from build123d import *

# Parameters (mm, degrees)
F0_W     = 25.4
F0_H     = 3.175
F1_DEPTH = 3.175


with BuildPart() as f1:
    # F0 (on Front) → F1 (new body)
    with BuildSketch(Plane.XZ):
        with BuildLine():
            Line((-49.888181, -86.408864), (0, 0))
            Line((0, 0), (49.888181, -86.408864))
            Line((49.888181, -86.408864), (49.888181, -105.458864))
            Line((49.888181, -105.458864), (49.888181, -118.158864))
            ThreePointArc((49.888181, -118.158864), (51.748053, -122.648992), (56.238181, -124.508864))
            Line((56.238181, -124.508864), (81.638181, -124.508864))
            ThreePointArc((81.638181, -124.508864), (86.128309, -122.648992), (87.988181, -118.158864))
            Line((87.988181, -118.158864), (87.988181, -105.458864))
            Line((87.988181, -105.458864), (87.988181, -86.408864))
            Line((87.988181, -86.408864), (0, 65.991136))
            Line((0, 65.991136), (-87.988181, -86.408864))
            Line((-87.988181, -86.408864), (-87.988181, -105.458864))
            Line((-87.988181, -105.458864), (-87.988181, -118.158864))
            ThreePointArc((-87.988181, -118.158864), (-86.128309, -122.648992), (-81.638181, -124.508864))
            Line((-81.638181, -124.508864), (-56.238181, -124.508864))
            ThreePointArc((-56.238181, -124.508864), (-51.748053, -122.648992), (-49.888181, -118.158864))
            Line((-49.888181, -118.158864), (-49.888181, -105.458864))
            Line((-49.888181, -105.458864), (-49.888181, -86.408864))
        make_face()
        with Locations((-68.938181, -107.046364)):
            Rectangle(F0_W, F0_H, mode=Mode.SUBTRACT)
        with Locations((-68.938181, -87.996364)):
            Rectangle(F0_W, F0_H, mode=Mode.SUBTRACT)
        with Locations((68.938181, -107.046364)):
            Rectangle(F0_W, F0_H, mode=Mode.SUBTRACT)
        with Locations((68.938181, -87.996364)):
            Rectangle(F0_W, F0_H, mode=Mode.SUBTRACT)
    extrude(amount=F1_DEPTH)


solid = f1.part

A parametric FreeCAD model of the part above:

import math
import FreeCAD as App
import Part
import Sketcher

V = App.Vector
Q = App.Units.Quantity

doc = App.newDocument("Part")
body = doc.addObject("PartDesign::Body", "Body")

# Sketch on XZ plane
sketch1 = doc.addObject("Sketcher::SketchObject", "Sketch")
body.addObject(sketch1)
sketch1.AttachmentSupport = (doc.XZ_Plane, [""])
sketch1.MapMode = "FlatFace"
sketch1.addGeometry(Part.LineSegment(V(-49.9, -86.4, 0), V(0, 0, 0)), False)
sketch1.addGeometry(Part.LineSegment(V(0, 0, 0), V(49.9, -86.4, 0)), False)
sketch1.addGeometry(Part.LineSegment(V(49.9, -86.4, 0), V(49.9, -118.2, 0)), False)
sketch1.addGeometry(Part.ArcOfCircle(Part.Circle(V(56.2, -118.2, 0), V(0, 0, 1), 6.4), math.radians(-180), math.radians(-90)), False)
sketch1.addGeometry(Part.LineSegment(V(56.2, -124.5, 0), V(81.6, -124.5, 0)), False)
sketch1.addGeometry(Part.ArcOfCircle(Part.Circle(V(81.6, -118.2, 0), V(0, 0, 1), 6.4), math.radians(-90), math.radians(0)), False)
sketch1.addGeometry(Part.LineSegment(V(88, -118.2, 0), V(88, -86.4, 0)), False)
sketch1.addGeometry(Part.LineSegment(V(88, -86.4, 0), V(0, 66, 0)), False)
sketch1.addGeometry(Part.LineSegment(V(0, 66, 0), V(-88, -86.4, 0)), False)
sketch1.addGeometry(Part.LineSegment(V(-88, -86.4, 0), V(-88, -118.2, 0)), False)
sketch1.addGeometry(Part.ArcOfCircle(Part.Circle(V(-81.6, -118.2, 0), V(0, 0, 1), 6.4), math.radians(-180), math.radians(-90)), False)
sketch1.addGeometry(Part.LineSegment(V(-81.6, -124.5, 0), V(-56.2, -124.5, 0)), False)
sketch1.addGeometry(Part.ArcOfCircle(Part.Circle(V(-56.2, -118.2, 0), V(0, 0, 1), 6.4), math.radians(-90), math.radians(0)), False)
sketch1.addGeometry(Part.LineSegment(V(-49.9, -118.2, 0), V(-49.9, -86.4, 0)), False)
sketch1.addGeometry(Part.LineSegment(V(-56.2, -108.6, 0), V(-81.6, -108.6, 0)), False)
sketch1.addGeometry(Part.LineSegment(V(-81.6, -108.6, 0), V(-81.6, -105.5, 0)), False)
sketch1.addGeometry(Part.LineSegment(V(-81.6, -105.5, 0), V(-56.2, -105.5, 0)), False)
sketch1.addGeometry(Part.LineSegment(V(-56.2, -105.5, 0), V(-56.2, -108.6, 0)), False)
sketch1.addGeometry(Part.LineSegment(V(81.6, -108.6, 0), V(56.2, -108.6, 0)), False)
sketch1.addGeometry(Part.LineSegment(V(56.2, -108.6, 0), V(56.2, -105.5, 0)), False)
sketch1.addGeometry(Part.LineSegment(V(56.2, -105.5, 0), V(81.6, -105.5, 0)), False)
sketch1.addGeometry(Part.LineSegment(V(81.6, -105.5, 0), V(81.6, -108.6, 0)), False)
sketch1.addGeometry(Part.LineSegment(V(-56.2, -89.6, 0), V(-81.6, -89.6, 0)), False)
sketch1.addGeometry(Part.LineSegment(V(-81.6, -89.6, 0), V(-81.6, -86.4, 0)), False)
sketch1.addGeometry(Part.LineSegment(V(-81.6, -86.4, 0), V(-56.2, -86.4, 0)), False)
sketch1.addGeometry(Part.LineSegment(V(-56.2, -86.4, 0), V(-56.2, -89.6, 0)), False)
sketch1.addGeometry(Part.LineSegment(V(81.6, -89.6, 0), V(56.2, -89.6, 0)), False)
sketch1.addGeometry(Part.LineSegment(V(56.2, -89.6, 0), V(56.2, -86.4, 0)), False)
sketch1.addGeometry(Part.LineSegment(V(56.2, -86.4, 0), V(81.6, -86.4, 0)), False)
sketch1.addGeometry(Part.LineSegment(V(81.6, -86.4, 0), V(81.6, -89.6, 0)), False)
sketch1.addConstraint(Sketcher.Constraint("Coincident", 0, 2, 1, 1))
sketch1.addConstraint(Sketcher.Constraint("Coincident", 1, 2, 2, 1))
sketch1.addConstraint(Sketcher.Constraint("Tangent", 2, 2, 3, 1))
sketch1.addConstraint(Sketcher.Constraint("Tangent", 3, 2, 4, 1))
sketch1.addConstraint(Sketcher.Constraint("Tangent", 4, 2, 5, 1))
sketch1.addConstraint(Sketcher.Constraint("Tangent", 5, 2, 6, 1))
sketch1.addConstraint(Sketcher.Constraint("Coincident", 6, 2, 7, 1))
sketch1.addConstraint(Sketcher.Constraint("Coincident", 7, 2, 8, 1))
sketch1.addConstraint(Sketcher.Constraint("Coincident", 8, 2, 9, 1))
sketch1.addConstraint(Sketcher.Constraint("Tangent", 9, 2, 10, 1))
sketch1.addConstraint(Sketcher.Constraint("Tangent", 10, 2, 11, 1))
sketch1.addConstraint(Sketcher.Constraint("Tangent", 11, 2, 12, 1))
sketch1.addConstraint(Sketcher.Constraint("Tangent", 12, 2, 13, 1))
sketch1.addConstraint(Sketcher.Constraint("Coincident", 13, 2, 0, 1))
sketch1.addConstraint(Sketcher.Constraint("Coincident", 14, 2, 15, 1))
sketch1.addConstraint(Sketcher.Constraint("Coincident", 15, 2, 16, 1))
sketch1.addConstraint(Sketcher.Constraint("Coincident", 16, 2, 17, 1))
sketch1.addConstraint(Sketcher.Constraint("Coincident", 17, 2, 14, 1))
sketch1.addConstraint(Sketcher.Constraint("Coincident", 18, 2, 19, 1))
sketch1.addConstraint(Sketcher.Constraint("Coincident", 19, 2, 20, 1))
sketch1.addConstraint(Sketcher.Constraint("Coincident", 20, 2, 21, 1))
sketch1.addConstraint(Sketcher.Constraint("Coincident", 21, 2, 18, 1))
sketch1.addConstraint(Sketcher.Constraint("Coincident", 22, 2, 23, 1))
sketch1.addConstraint(Sketcher.Constraint("Coincident", 23, 2, 24, 1))
sketch1.addConstraint(Sketcher.Constraint("Coincident", 24, 2, 25, 1))
sketch1.addConstraint(Sketcher.Constraint("Coincident", 25, 2, 22, 1))
sketch1.addConstraint(Sketcher.Constraint("Coincident", 26, 2, 27, 1))
sketch1.addConstraint(Sketcher.Constraint("Coincident", 27, 2, 28, 1))
sketch1.addConstraint(Sketcher.Constraint("Coincident", 28, 2, 29, 1))
sketch1.addConstraint(Sketcher.Constraint("Coincident", 29, 2, 26, 1))
sketch1.addConstraint(Sketcher.Constraint("Vertical", 2))
sketch1.addConstraint(Sketcher.Constraint("Horizontal", 4))
sketch1.addConstraint(Sketcher.Constraint("Vertical", 6))
sketch1.addConstraint(Sketcher.Constraint("Vertical", 9))
sketch1.addConstraint(Sketcher.Constraint("Horizontal", 11))
sketch1.addConstraint(Sketcher.Constraint("Vertical", 13))
sketch1.addConstraint(Sketcher.Constraint("Horizontal", 14))
sketch1.addConstraint(Sketcher.Constraint("Vertical", 15))
sketch1.addConstraint(Sketcher.Constraint("Horizontal", 16))
sketch1.addConstraint(Sketcher.Constraint("Vertical", 17))
sketch1.addConstraint(Sketcher.Constraint("Horizontal", 18))
sketch1.addConstraint(Sketcher.Constraint("Vertical", 19))
sketch1.addConstraint(Sketcher.Constraint("Horizontal", 20))
sketch1.addConstraint(Sketcher.Constraint("Vertical", 21))
sketch1.addConstraint(Sketcher.Constraint("Horizontal", 22))
sketch1.addConstraint(Sketcher.Constraint("Vertical", 23))
sketch1.addConstraint(Sketcher.Constraint("Horizontal", 24))
sketch1.addConstraint(Sketcher.Constraint("Vertical", 25))
sketch1.addConstraint(Sketcher.Constraint("Horizontal", 26))
sketch1.addConstraint(Sketcher.Constraint("Vertical", 27))
sketch1.addConstraint(Sketcher.Constraint("Horizontal", 28))
sketch1.addConstraint(Sketcher.Constraint("Vertical", 29))
sketch1.addConstraint(Sketcher.Constraint("Coincident", 0, 2, -1, 1))
sketch1.addConstraint(Sketcher.Constraint("Equal", 3, 5))
sketch1.addConstraint(Sketcher.Constraint("Equal", 5, 10))
sketch1.addConstraint(Sketcher.Constraint("Equal", 10, 12))
sketch1.addConstraint(Sketcher.Constraint("Symmetric", 5, 3, 10, 3, -2))
sketch1.addConstraint(Sketcher.Constraint("Symmetric", 1, 2, 13, 2, -2))
sketch1.addConstraint(Sketcher.Constraint("Symmetric", 17, 2, 18, 2, -2))
sketch1.addConstraint(Sketcher.Constraint("Symmetric", 15, 2, 20, 2, -2))
sketch1.addConstraint(Sketcher.Constraint("Symmetric", 25, 2, 26, 2, -2))
sketch1.addConstraint(Sketcher.Constraint("Symmetric", 23, 2, 28, 2, -2))
sketch1.addConstraint(Sketcher.Constraint("PointOnObject", 7, 2, -2))
sketch1.addConstraint(Sketcher.Constraint("Parallel", 1, 7))
sketch1.addConstraint(Sketcher.Constraint("Parallel", 0, 8))
sketch1.addConstraint(Sketcher.Constraint("Horizontal", 1, 2, 6, 2))
sketch1.addConstraint(Sketcher.Constraint("Horizontal", 13, 2, 23, 2))
sketch1.addConstraint(Sketcher.Constraint("Vertical", 10, 2, 14, 2))
sketch1.addConstraint(Sketcher.Constraint("Vertical", 11, 2, 16, 2))
sketch1.addConstraint(Sketcher.Constraint("Vertical", 15, 2, 22, 2))
sketch1.addConstraint(Sketcher.Constraint("Vertical", 17, 2, 24, 2))
sketch1.addConstraint(Sketcher.Constraint("Equal", 21, 23))
sketch1.addConstraint(Sketcher.Constraint("DistanceX", 4, 1, 4, 2, Q("1 in")))
sketch1.addConstraint(Sketcher.Constraint("Radius", 3, Q("0.25 in")))
sketch1.addConstraint(Sketcher.Constraint("Angle", 0, Q("60 deg")))
sketch1.addConstraint(Sketcher.Constraint("DistanceY", 1, 2, 7, 2, Q("6 in")))
sketch1.addConstraint(Sketcher.Constraint("DistanceY", 2, 2, 2, 1, Q("1.25 in")))
sketch1.addConstraint(Sketcher.Constraint("DistanceY", 10, 3, 15, 2, Q("0.5 in")))
sketch1.addConstraint(Sketcher.Constraint("DistanceY", 15, 1, 15, 2, Q("0.125 in")))
pad1 = doc.addObject("PartDesign::Pad", "Pad")
body.addObject(pad1)
pad1.Profile = sketch1
pad1.Length = Q("0.125 in")

doc.recompute()
